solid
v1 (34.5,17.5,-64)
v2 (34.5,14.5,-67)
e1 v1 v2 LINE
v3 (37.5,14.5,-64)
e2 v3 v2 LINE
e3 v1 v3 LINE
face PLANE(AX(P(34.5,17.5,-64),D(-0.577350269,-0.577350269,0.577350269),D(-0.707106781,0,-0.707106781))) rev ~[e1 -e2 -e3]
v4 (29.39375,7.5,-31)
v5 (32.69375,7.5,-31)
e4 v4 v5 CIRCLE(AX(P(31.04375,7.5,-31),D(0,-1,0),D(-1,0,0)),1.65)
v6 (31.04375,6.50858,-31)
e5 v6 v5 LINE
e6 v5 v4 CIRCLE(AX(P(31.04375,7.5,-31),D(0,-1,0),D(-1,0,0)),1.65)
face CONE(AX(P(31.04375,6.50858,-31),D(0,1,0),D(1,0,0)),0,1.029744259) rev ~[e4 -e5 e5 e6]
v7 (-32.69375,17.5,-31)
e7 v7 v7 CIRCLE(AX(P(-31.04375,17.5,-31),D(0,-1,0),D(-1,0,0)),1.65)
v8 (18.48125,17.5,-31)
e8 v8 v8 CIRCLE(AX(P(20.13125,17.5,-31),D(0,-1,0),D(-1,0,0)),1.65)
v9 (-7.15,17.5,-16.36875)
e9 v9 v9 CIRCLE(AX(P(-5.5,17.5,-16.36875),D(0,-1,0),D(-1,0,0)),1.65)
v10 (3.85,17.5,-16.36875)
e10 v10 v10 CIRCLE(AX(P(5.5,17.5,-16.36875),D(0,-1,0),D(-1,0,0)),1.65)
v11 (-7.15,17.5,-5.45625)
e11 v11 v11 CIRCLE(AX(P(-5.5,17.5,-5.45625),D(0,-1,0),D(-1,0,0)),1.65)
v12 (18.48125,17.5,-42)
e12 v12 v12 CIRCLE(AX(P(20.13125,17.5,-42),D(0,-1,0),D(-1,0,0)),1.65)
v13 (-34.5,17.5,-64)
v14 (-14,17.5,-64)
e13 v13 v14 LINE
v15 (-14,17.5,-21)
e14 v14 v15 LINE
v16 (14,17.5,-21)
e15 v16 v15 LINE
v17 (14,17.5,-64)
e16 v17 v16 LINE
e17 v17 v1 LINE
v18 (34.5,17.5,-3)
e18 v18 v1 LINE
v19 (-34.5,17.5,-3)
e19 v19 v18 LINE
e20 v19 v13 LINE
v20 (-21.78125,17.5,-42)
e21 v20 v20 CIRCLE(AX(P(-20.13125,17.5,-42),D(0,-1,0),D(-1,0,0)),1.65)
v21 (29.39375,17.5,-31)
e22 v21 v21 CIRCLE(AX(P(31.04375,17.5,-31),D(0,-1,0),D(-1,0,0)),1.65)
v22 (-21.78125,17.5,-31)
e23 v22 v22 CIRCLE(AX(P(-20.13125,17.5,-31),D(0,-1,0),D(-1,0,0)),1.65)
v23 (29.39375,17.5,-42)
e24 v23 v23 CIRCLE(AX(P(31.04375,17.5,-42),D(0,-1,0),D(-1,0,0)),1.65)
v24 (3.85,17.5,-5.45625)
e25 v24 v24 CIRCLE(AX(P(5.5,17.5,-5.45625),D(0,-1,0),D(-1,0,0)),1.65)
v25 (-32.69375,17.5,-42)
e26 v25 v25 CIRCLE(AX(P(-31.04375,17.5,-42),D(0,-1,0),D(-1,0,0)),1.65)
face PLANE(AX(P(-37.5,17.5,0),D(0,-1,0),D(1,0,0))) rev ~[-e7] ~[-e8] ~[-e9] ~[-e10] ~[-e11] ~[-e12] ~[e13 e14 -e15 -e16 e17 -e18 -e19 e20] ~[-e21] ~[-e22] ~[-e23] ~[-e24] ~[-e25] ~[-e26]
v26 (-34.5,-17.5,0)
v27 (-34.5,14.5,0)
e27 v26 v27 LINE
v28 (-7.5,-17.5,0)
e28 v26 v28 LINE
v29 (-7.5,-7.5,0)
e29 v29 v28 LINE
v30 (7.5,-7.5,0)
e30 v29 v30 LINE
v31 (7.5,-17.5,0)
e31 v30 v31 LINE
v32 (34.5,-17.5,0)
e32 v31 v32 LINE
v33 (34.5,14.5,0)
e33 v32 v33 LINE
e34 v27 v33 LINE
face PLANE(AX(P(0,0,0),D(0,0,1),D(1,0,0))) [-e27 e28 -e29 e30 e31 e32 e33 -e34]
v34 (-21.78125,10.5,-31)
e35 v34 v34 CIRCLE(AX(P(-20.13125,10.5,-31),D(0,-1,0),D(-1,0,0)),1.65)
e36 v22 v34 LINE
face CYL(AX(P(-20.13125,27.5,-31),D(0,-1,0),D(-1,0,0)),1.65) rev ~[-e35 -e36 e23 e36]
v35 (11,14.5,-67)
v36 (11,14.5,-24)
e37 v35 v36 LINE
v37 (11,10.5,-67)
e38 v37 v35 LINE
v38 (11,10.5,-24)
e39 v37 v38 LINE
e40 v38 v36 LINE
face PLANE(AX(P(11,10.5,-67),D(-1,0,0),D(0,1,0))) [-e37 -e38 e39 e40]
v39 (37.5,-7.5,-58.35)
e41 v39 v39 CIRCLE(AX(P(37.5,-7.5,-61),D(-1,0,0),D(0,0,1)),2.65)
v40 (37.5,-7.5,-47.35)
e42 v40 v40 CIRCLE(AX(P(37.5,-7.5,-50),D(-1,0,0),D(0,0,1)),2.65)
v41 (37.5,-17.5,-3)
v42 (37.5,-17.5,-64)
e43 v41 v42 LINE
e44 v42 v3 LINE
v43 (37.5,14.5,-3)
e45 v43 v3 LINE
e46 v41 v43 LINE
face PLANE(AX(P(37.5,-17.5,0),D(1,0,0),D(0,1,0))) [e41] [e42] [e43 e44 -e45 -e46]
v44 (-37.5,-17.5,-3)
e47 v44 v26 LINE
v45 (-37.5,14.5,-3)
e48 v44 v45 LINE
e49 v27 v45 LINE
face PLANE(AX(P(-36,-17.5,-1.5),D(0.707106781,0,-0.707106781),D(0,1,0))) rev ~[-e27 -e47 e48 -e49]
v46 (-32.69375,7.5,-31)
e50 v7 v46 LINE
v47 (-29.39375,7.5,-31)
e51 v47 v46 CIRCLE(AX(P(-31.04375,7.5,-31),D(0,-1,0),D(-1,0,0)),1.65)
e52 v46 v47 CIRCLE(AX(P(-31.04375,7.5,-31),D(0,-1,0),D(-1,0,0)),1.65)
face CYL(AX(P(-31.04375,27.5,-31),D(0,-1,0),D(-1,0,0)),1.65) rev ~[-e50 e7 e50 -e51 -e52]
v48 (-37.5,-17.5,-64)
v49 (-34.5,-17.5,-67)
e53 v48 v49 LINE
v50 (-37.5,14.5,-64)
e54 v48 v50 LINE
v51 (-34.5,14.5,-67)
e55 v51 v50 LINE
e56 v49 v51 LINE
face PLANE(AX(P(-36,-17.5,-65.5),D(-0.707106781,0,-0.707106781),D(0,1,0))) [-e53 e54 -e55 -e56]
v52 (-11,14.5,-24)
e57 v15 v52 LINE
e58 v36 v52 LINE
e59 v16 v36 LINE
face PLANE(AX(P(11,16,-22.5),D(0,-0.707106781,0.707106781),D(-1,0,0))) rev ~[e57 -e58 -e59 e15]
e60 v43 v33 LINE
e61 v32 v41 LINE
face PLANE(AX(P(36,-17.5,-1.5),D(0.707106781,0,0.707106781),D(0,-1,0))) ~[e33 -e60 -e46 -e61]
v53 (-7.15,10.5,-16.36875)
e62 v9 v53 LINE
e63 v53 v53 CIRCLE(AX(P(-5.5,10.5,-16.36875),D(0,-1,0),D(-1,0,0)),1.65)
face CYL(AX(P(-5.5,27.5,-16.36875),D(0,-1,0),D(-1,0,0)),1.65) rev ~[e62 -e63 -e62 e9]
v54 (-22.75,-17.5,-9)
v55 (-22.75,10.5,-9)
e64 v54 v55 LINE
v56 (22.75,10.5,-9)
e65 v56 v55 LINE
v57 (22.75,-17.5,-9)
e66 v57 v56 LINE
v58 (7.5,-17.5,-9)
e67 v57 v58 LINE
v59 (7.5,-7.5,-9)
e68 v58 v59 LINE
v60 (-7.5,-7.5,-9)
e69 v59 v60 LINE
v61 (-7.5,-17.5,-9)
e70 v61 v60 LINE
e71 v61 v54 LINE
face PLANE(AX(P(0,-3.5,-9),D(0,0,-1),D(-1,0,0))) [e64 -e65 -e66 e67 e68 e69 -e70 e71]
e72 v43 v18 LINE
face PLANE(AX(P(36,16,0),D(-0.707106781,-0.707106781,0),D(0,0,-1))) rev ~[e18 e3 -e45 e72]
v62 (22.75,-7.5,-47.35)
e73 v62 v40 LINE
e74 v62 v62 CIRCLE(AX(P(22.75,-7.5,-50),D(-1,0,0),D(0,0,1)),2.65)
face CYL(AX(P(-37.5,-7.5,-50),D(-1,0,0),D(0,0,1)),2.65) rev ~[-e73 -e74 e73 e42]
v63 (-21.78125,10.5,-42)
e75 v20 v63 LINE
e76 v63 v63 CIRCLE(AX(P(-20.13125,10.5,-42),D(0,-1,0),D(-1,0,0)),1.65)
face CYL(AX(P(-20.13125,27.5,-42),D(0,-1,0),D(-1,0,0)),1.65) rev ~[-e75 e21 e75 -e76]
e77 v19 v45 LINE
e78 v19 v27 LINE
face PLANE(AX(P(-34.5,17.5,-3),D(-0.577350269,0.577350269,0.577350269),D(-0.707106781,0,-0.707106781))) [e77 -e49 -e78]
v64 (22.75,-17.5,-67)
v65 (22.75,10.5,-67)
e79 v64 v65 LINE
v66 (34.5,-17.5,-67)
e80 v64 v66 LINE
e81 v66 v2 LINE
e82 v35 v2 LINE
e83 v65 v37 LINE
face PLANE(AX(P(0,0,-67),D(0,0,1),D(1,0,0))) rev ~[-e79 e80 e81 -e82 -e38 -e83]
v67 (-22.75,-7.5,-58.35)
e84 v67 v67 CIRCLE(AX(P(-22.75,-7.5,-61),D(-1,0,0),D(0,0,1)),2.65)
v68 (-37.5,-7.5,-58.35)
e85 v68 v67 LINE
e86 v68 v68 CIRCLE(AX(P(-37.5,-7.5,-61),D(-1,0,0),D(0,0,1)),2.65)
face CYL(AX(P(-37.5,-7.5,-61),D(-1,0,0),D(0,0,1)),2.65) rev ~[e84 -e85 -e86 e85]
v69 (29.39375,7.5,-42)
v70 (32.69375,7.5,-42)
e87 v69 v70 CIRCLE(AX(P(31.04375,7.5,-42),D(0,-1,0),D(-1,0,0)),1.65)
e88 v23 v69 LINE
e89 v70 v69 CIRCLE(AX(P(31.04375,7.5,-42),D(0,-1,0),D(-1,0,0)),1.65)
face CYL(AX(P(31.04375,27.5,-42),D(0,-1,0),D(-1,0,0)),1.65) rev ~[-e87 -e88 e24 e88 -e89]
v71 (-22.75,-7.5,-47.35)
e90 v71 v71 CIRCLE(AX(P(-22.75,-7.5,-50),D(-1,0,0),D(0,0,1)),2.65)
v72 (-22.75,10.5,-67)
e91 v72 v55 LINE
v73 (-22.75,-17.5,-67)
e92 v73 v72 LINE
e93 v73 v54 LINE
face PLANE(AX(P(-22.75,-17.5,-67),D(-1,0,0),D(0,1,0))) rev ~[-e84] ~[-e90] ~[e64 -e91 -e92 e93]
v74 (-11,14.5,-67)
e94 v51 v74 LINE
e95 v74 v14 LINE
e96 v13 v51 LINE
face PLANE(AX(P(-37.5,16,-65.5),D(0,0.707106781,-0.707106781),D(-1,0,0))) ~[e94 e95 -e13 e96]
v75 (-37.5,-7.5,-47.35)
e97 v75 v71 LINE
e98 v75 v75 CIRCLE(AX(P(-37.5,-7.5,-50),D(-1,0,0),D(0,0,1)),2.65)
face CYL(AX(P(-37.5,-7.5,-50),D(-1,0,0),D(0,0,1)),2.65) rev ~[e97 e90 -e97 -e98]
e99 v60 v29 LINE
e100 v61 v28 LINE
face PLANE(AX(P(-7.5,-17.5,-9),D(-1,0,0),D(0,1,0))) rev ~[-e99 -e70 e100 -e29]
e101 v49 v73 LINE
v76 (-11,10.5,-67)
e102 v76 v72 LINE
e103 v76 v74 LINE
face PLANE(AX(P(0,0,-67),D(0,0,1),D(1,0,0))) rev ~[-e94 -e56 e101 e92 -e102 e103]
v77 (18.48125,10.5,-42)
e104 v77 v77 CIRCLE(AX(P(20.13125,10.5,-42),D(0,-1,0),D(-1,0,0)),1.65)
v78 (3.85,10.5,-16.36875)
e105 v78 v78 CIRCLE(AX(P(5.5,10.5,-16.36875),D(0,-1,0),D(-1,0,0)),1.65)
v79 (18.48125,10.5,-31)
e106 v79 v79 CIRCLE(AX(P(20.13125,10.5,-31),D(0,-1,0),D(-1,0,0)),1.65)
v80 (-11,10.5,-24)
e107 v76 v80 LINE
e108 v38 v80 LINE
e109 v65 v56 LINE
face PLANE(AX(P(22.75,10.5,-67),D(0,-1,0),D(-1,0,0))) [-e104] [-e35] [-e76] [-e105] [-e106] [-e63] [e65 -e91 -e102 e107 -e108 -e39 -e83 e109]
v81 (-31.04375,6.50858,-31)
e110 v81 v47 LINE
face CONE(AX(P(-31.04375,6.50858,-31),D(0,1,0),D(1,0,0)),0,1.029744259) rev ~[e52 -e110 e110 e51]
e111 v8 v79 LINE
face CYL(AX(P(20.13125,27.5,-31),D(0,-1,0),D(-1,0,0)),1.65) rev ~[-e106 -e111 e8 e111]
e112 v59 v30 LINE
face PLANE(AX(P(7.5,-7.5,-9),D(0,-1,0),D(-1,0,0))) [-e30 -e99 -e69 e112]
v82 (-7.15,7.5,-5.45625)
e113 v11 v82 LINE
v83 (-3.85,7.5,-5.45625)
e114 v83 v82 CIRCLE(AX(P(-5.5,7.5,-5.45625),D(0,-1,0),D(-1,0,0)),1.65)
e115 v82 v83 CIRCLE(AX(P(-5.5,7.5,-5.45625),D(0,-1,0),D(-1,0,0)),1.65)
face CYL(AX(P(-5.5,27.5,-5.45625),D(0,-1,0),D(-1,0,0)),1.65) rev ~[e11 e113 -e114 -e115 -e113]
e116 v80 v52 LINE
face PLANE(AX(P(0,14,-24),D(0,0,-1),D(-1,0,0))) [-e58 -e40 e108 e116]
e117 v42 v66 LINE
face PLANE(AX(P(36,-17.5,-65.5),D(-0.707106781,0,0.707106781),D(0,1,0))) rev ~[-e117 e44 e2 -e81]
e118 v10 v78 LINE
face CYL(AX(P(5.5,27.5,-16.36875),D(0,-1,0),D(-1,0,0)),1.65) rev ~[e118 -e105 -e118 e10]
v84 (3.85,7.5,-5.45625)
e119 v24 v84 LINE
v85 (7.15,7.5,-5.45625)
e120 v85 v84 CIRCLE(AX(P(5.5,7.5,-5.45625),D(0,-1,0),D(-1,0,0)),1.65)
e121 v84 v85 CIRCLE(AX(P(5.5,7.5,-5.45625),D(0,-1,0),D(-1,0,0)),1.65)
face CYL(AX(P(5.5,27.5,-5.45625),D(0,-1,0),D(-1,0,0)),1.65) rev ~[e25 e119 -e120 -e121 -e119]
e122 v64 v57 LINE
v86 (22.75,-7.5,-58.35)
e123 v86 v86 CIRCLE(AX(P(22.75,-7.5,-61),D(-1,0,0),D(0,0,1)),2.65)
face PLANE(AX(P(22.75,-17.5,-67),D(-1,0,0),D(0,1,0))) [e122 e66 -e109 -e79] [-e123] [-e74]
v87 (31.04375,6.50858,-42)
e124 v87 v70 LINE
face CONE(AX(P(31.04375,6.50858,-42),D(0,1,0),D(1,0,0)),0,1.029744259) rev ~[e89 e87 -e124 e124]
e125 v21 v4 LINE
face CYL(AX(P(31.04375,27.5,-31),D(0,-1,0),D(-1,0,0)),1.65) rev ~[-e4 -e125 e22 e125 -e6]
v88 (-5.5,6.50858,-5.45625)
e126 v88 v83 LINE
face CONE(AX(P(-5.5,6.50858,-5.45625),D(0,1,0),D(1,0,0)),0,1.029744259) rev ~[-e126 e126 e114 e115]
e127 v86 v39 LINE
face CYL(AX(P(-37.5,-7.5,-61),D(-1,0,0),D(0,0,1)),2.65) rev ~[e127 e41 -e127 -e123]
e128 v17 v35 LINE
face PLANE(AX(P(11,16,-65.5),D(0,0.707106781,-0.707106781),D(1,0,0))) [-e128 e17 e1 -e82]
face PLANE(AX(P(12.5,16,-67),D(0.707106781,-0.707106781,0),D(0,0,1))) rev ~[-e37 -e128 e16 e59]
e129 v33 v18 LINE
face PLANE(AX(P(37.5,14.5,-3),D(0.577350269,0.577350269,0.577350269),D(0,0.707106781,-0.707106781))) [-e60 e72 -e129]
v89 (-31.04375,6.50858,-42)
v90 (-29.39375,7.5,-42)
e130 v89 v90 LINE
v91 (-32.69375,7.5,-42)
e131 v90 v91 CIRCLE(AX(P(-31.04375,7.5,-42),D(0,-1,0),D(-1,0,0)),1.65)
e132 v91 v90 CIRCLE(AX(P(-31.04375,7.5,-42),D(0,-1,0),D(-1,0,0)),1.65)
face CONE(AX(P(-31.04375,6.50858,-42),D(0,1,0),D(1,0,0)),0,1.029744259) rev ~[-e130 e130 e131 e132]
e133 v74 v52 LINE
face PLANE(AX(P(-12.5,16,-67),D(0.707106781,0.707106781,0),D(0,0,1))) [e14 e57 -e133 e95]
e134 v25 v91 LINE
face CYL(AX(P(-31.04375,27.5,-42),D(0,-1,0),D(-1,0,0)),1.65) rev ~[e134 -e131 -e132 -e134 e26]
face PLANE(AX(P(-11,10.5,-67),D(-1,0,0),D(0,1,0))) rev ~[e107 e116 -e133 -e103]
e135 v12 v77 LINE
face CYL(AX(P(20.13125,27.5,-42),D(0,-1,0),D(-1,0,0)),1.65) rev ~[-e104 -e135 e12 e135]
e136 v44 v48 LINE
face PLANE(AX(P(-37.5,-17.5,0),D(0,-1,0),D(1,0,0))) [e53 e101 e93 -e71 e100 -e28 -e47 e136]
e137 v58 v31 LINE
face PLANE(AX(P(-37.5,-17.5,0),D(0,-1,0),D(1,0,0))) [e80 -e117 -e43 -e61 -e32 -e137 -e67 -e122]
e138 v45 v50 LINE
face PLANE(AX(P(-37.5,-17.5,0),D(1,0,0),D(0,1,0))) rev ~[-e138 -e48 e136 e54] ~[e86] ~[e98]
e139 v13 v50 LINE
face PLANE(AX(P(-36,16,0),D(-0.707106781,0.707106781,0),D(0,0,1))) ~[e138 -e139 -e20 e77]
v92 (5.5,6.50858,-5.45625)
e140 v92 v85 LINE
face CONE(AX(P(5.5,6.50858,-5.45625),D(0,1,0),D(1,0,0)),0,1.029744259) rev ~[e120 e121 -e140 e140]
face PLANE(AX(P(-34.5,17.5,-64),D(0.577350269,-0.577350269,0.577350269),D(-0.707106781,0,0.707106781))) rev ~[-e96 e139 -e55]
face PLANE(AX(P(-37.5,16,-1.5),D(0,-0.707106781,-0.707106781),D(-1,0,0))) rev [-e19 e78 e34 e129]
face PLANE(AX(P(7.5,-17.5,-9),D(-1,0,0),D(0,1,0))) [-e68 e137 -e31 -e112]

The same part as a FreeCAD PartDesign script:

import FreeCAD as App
import Part
import Sketcher

V = App.Vector


def edges_at(feature, points):
    """Names of the edges that pass closest to the given points."""
    edges = feature.Shape.Edges
    near = lambda p: min(range(len(edges)), key=lambda i: edges[i].distToShape(Part.Vertex(*p))[0])
    return sorted({f"Edge{near(p) + 1}" for p in points})


def add_polygon(sketch, points):
    """Adds a closed chain of lines whose ends are joined by coincident constraints."""
    first, n = sketch.GeometryCount, len(points)
    for a, b in zip(points, points[1:] + points[:1]):
        sketch.addGeometry(Part.LineSegment(App.Vector(*a, 0), App.Vector(*b, 0)), False)
    for i in range(n):
        sketch.addConstraint(Sketcher.Constraint("Coincident", first + i, 2, first + (i + 1) % n, 1))

doc = App.newDocument("Part")
body = doc.addObject("PartDesign::Body", "Body")

# Sketch on XY plane
sketch1 = body.newObject("Sketcher::SketchObject", "Sketch")
sketch1.AttachmentSupport = (doc.getObject("XY_Plane"), [""])
sketch1.MapMode = "FlatFace"
add_polygon(sketch1, [(-38, 18), (-38, -18), (38, -18), (38, 18)])  # lines 0-3
sketch1.addConstraint([
    Sketcher.Constraint("Vertical", 0),
    Sketcher.Constraint("Horizontal", 1),
    Sketcher.Constraint("Vertical", 2),
    Sketcher.Constraint("Horizontal", 3),
    Sketcher.Constraint("Symmetric", 0, 2, 2, 2, -1, 1),
    Sketcher.Constraint("DistanceX", 1, 1, 1, 2, 75.0),
    Sketcher.Constraint("DistanceY", 0, 2, 0, 1, 35.0),
])
pad1 = body.newObject("PartDesign::Pad", "Pad")
pad1.Profile = sketch1
pad1.Length = 67
pad1.Reversed = True

# Sketch on XY plane
sketch2 = body.newObject("Sketcher::SketchObject", "Sketch001")
sketch2.AttachmentSupport = (doc.getObject("XY_Plane"), [""])
sketch2.MapMode = "FlatFace"
sketch2.AttachmentOffset = App.Placement(V(0, 0, -67), App.Rotation())
add_polygon(sketch2, [(23, 10), (23, -18), (-23, -18), (-23, 10)])  # lines 0-3
sketch2.addConstraint([
    Sketcher.Constraint("Vertical", 0),
    Sketcher.Constraint("Horizontal", 1),
    Sketcher.Constraint("Vertical", 2),
    Sketcher.Constraint("Horizontal", 3),
    Sketcher.Constraint("DistanceY", 0, 2, 0, 1, 28.0),
    Sketcher.Constraint("DistanceX", 1, 2, 1, 1, 45.5),
    Sketcher.Constraint("DistanceY", 0, 2, -1, 1, 17.5),
    Sketcher.Constraint("DistanceX", -1, 1, 0, 2, 22.75),
])
pocket1 = body.newObject("PartDesign::Pocket", "Pocket")
pocket1.Profile = sketch2
pocket1.Length = 58
pocket1.Reversed = True

# Sketch on XY plane
sketch3 = body.newObject("Sketcher::SketchObject", "Sketch002")
sketch3.AttachmentSupport = (doc.getObject("XY_Plane"), [""])
sketch3.MapMode = "FlatFace"
sketch3.AttachmentOffset = App.Placement(V(0, 0, -9), App.Rotation())
add_polygon(sketch3, [(8, -8), (8, -18), (-8, -18), (-8, -8)])  # lines 0-3
sketch3.addConstraint([
    Sketcher.Constraint("Vertical", 0),
    Sketcher.Constraint("Horizontal", 1),
    Sketcher.Constraint("Vertical", 2),
    Sketcher.Constraint("Horizontal", 3),
    Sketcher.Constraint("DistanceX", 1, 2, 1, 1, 15.0),
    Sketcher.Constraint("DistanceY", 0, 2, 0, 1, 10.0),
    Sketcher.Constraint("DistanceX", -1, 1, 0, 2, 7.5),
    Sketcher.Constraint("DistanceY", 0, 2, -1, 1, 17.5),
])
pocket2 = body.newObject("PartDesign::Pocket", "Pocket001")
pocket2.Profile = sketch3
pocket2.Type = "ThroughAll"
pocket2.Reversed = True

# Sketch on XY plane
sketch4 = body.newObject("Sketcher::SketchObject", "Sketch003")
sketch4.AttachmentSupport = (doc.getObject("XY_Plane"), [""])
sketch4.MapMode = "FlatFace"
sketch4.AttachmentOffset = App.Placement(V(0, 0, -67), App.Rotation())
add_polygon(sketch4, [(11, 18), (11, 10), (-11, 10), (-11, 18)])  # lines 0-3
sketch4.addConstraint([
    Sketcher.Constraint("Vertical", 0),
    Sketcher.Constraint("Horizontal", 1),
    Sketcher.Constraint("Vertical", 2),
    Sketcher.Constraint("Horizontal", 3),
    Sketcher.Constraint("DistanceX", 1, 2, 1, 1, 22.0),
    Sketcher.Constraint("DistanceY", 0, 2, 0, 1, 7.0),
    Sketcher.Constraint("DistanceX", -1, 1, 0, 2, 11.0),
    Sketcher.Constraint("DistanceY", -1, 1, 0, 2, 10.5),
])
pocket3 = body.newObject("PartDesign::Pocket", "Pocket002")
pocket3.Profile = sketch4
pocket3.Length = 43
pocket3.Reversed = True

# Sketch on XZ plane
sketch5 = body.newObject("Sketcher::SketchObject", "Sketch004")
sketch5.AttachmentSupport = (doc.getObject("XZ_Plane"), [""])
sketch5.MapMode = "FlatFace"
sketch5.AttachmentOffset = App.Placement(V(0, 0, -17.5), App.Rotation())
sketch5.addGeometry([
    Part.Circle(V(-31, -31, 0), V(0, 0, 1), 1.6),  # 0
    Part.Circle(V(-31, -42, 0), V(0, 0, 1), 1.6),  # 1
    Part.Circle(V(-20.1, -42, 0), V(0, 0, 1), 1.6),  # 2
    Part.Circle(V(-20.1, -31, 0), V(0, 0, 1), 1.6),  # 3
    Part.Circle(V(-5.5, -16.4, 0), V(0, 0, 1), 1.6),  # 4
    Part.Circle(V(5.5, -16.4, 0), V(0, 0, 1), 1.6),  # 5
    Part.Circle(V(-5.5, -5.5, 0), V(0, 0, 1), 1.6),  # 6
    Part.Circle(V(5.5, -5.5, 0), V(0, 0, 1), 1.6),  # 7
    Part.Circle(V(31, -42, 0), V(0, 0, 1), 1.6),  # 8
    Part.Circle(V(20.1, -42, 0), V(0, 0, 1), 1.6),  # 9
    Part.Circle(V(31, -31, 0), V(0, 0, 1), 1.6),  # 10
    Part.Circle(V(20.1, -31, 0), V(0, 0, 1), 1.6),  # 11
], False)
sketch5.addConstraint([
    Sketcher.Constraint("Equal", 0, 1),
    Sketcher.Constraint("Equal", 1, 2),
    Sketcher.Constraint("Equal", 2, 3),
    Sketcher.Constraint("Equal", 3, 4),
    Sketcher.Constraint("Equal", 4, 5),
    Sketcher.Constraint("Equal", 5, 6),
    Sketcher.Constraint("Equal", 6, 7),
    Sketcher.Constraint("Equal", 7, 8),
    Sketcher.Constraint("Equal", 8, 9),
    Sketcher.Constraint("Equal", 9, 10),
    Sketcher.Constraint("Equal", 10, 11),
    Sketcher.Constraint("Symmetric", 4, 3, 5, 3, -2),
    Sketcher.Constraint("Symmetric", 6, 3, 7, 3, -2),
    Sketcher.Constraint("Symmetric", 1, 3, 8, 3, -2),
    Sketcher.Constraint("Symmetric", 2, 3, 9, 3, -2),
    Sketcher.Constraint("Symmetric", 0, 3, 10, 3, -2),
    Sketcher.Constraint("Symmetric", 3, 3, 11, 3, -2),
    Sketcher.Constraint("Horizontal", 1, 3, 2, 3),
    Sketcher.Constraint("Horizontal", 0, 3, 3, 3),
    Sketcher.Constraint("Vertical", 0, 3, 1, 3),
    Sketcher.Constraint("Vertical", 2, 3, 3, 3),
    Sketcher.Constraint("Vertical", 4, 3, 6, 3),
    Sketcher.Constraint("Diameter", 0, 3.3),
    Sketcher.Constraint("DistanceY", 0, 3, -1, 1, 31.0),
    Sketcher.Constraint("DistanceY", 1, 3, -1, 1, 42.0),
    Sketcher.Constraint("DistanceX", 4, 3, 5, 3, 11.0),
    Sketcher.Constraint("DistanceX", 2, 3, 8, 3, 51.175),
    Sketcher.Constraint("DistanceX", 1, 3, 2, 3, 10.9125),
    Sketcher.Constraint("DistanceY", 4, 3, 6, 3, 10.9125),
    Sketcher.Constraint("DistanceY", 4, 3, -1, 1, 16.36875),
])
doc.recompute()
hole = body.newObject("PartDesign::Hole", "Hole")
hole.Profile = sketch5
hole.ThreadType = "None"
hole.Diameter = 3.3
hole.DepthType = "Dimension"
hole.Depth = 10
hole.DrillPoint = "Angled"
hole.DrillPointAngle = 118
hole.Reversed = True

# Sketch on YZ plane
sketch6 = body.newObject("Sketcher::SketchObject", "Sketch005")
sketch6.AttachmentSupport = (doc.getObject("YZ_Plane"), [""])
sketch6.MapMode = "FlatFace"
sketch6.AttachmentOffset = App.Placement(V(0, 0, -37.5), App.Rotation())
sketch6.addGeometry([
    Part.Circle(V(-7.5, -61, 0), V(0, 0, 1), 2.6),
    Part.Circle(V(-7.5, -50, 0), V(0, 0, 1), 2.6),
], False)
sketch6.addConstraint([
    Sketcher.Constraint("Equal", 0, 1),
    Sketcher.Constraint("Vertical", 0, 3, 1, 3),
    Sketcher.Constraint("Diameter", 0, 5.3),
    Sketcher.Constraint("DistanceY", 0, 3, -1, 1, 61.0),
    Sketcher.Constraint("DistanceY", 1, 3, -1, 1, 50.0),
    Sketcher.Constraint("DistanceX", 0, 3, -1, 1, 7.5),
])
pocket4 = body.newObject("PartDesign::Pocket", "Pocket003")
pocket4.Profile = sketch6
pocket4.Type = "ThroughAll"
pocket4.Reversed = True
doc.recompute()

chamfer = body.newObject("PartDesign::Chamfer", "Chamfer")
chamfer.Base = (pocket4, edges_at(pocket4, [
    (-37.5, 0, -67),
    (-24.25, 17.5, -67),
    (0, 17.5, -24),
    (11, 17.5, -45.5),
    (37.5, 0, -67),
    (-11, 17.5, -45.5),
    (-37.5, 0, 0),
    (0, 17.5, 0),
    (37.5, 0, 0),
    (-37.5, 17.5, -33.5),
    (37.5, 17.5, -33.5),
    (24.25, 17.5, -67),
]))
chamfer.Size = 3

doc.recompute()
